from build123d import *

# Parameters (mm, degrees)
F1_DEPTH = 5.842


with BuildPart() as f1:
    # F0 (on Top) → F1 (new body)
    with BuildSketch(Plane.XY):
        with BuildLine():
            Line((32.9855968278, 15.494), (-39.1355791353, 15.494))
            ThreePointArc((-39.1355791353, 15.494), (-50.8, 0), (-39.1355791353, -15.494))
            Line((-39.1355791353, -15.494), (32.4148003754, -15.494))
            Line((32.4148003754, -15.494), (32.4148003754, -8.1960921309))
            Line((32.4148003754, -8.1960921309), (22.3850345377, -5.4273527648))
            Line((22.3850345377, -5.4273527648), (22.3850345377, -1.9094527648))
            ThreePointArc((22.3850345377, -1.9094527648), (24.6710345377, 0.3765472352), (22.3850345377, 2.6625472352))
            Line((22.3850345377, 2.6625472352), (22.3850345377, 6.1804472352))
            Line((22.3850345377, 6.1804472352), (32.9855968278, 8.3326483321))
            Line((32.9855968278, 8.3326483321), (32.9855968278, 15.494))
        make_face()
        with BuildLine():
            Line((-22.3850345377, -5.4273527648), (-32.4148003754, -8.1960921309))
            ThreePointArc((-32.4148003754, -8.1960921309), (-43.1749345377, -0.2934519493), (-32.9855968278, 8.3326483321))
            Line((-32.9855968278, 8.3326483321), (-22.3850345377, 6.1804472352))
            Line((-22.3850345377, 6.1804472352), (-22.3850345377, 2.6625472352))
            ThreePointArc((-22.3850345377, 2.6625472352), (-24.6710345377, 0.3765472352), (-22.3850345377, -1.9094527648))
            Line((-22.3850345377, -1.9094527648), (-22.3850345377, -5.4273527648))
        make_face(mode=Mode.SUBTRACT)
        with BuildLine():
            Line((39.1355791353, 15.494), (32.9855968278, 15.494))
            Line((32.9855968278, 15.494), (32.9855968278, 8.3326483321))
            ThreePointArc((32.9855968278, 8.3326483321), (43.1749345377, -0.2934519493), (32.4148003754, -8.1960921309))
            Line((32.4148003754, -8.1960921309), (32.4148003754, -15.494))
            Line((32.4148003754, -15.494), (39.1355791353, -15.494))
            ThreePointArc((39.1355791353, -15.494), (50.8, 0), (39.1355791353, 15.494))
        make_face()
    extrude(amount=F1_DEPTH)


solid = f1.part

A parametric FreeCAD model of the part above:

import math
import FreeCAD as App
import Part
import Sketcher
from FreeCAD import Vector
Q = App.Units.Quantity

doc = App.newDocument("Part")
body = doc.addObject("PartDesign::Body", "Body")

# Sketch on XY plane
sketch1 = body.newObject("Sketcher::SketchObject", "Sketch")
sketch1.AttachmentSupport = (doc.getObject("XY_Plane"), [""])
sketch1.MapMode = "FlatFace"
sketch1.addGeometry(Part.ArcOfCircle(Part.Circle(Vector(-34.7, 0, 0), Vector(0, 0, 1), 16.1), math.radians(106), math.radians(254)), False)
sketch1.addGeometry(Part.LineSegment(Vector(-39.1, -15.5, 0), Vector(39.1, -15.5, 0)), False)
sketch1.addGeometry(Part.ArcOfCircle(Part.Circle(Vector(34.7, 0, 0), Vector(0, 0, 1), 16.1), math.radians(-74), math.radians(74)), False)
sketch1.addGeometry(Part.LineSegment(Vector(39.1, 15.5, 0), Vector(-39.1, 15.5, 0)), False)
sketch1.addGeometry(Part.LineSegment(Vector(-22.4, -1.9, 0), Vector(-22.4, -5.4, 0)), False)
sketch1.addGeometry(Part.LineSegment(Vector(-22.4, -5.4, 0), Vector(-32.4, -8.2, 0)), False)
sketch1.addGeometry(Part.ArcOfCircle(Part.Circle(Vector(-34.7, 0, 0), Vector(0, 0, 1), 8.5), math.radians(79), math.radians(285)), False)
sketch1.addGeometry(Part.LineSegment(Vector(-33, 8.3, 0), Vector(-22.4, 6.2, 0)), False)
sketch1.addGeometry(Part.LineSegment(Vector(-22.4, 6.2, 0), Vector(-22.4, 2.7, 0)), False)
sketch1.addGeometry(Part.ArcOfCircle(Part.Circle(Vector(-22.4, 0.4, 0), Vector(0, 0, 1), 2.3), math.radians(90), math.radians(270)), False)
sketch1.addGeometry(Part.LineSegment(Vector(22.4, 6.2, 0), Vector(33, 8.3, 0)), False)
sketch1.addGeometry(Part.ArcOfCircle(Part.Circle(Vector(34.7, 0, 0), Vector(0, 0, 1), 8.5), math.radians(-105), math.radians(101)), False)
sketch1.addGeometry(Part.LineSegment(Vector(32.4, -8.2, 0), Vector(22.4, -5.4, 0)), False)
sketch1.addGeometry(Part.LineSegment(Vector(22.4, -5.4, 0), Vector(22.4, -1.9, 0)), False)
sketch1.addGeometry(Part.ArcOfCircle(Part.Circle(Vector(22.4, 0.4, 0), Vector(0, 0, 1), 2.3), math.radians(-90), math.radians(90)), False)
sketch1.addGeometry(Part.LineSegment(Vector(22.4, 2.7, 0), Vector(22.4, 6.2, 0)), False)
sketch1.addConstraint(Sketcher.Constraint("Coincident", 0, 2, 1, 1))
sketch1.addConstraint(Sketcher.Constraint("Coincident", 1, 2, 2, 1))
sketch1.addConstraint(Sketcher.Constraint("Coincident", 2, 2, 3, 1))
sketch1.addConstraint(Sketcher.Constraint("Coincident", 3, 2, 0, 1))
sketch1.addConstraint(Sketcher.Constraint("Coincident", 4, 2, 5, 1))
sketch1.addConstraint(Sketcher.Constraint("Tangent", 5, 2, 6, 2))
sketch1.addConstraint(Sketcher.Constraint("Tangent", 6, 1, 7, 1))
sketch1.addConstraint(Sketcher.Constraint("Coincident", 7, 2, 8, 1))
sketch1.addConstraint(Sketcher.Constraint("Coincident", 8, 2, 9, 1))
sketch1.addConstraint(Sketcher.Constraint("Coincident", 9, 2, 4, 1))
sketch1.addConstraint(Sketcher.Constraint("Tangent", 10, 2, 11, 2))
sketch1.addConstraint(Sketcher.Constraint("Tangent", 11, 1, 12, 1))
sketch1.addConstraint(Sketcher.Constraint("Coincident", 12, 2, 13, 1))
sketch1.addConstraint(Sketcher.Constraint("Coincident", 13, 2, 14, 1))
sketch1.addConstraint(Sketcher.Constraint("Coincident", 14, 2, 15, 1))
sketch1.addConstraint(Sketcher.Constraint("Coincident", 15, 2, 10, 1))
sketch1.addConstraint(Sketcher.Constraint("Horizontal", 1))
sketch1.addConstraint(Sketcher.Constraint("Horizontal", 3))
sketch1.addConstraint(Sketcher.Constraint("Vertical", 4))
sketch1.addConstraint(Sketcher.Constraint("Vertical", 8))
sketch1.addConstraint(Sketcher.Constraint("Vertical", 13))
sketch1.addConstraint(Sketcher.Constraint("Vertical", 15))
sketch1.addConstraint(Sketcher.Constraint("Coincident", 6, 3, 0, 3))
sketch1.addConstraint(Sketcher.Constraint("Coincident", 11, 3, 2, 3))
sketch1.addConstraint(Sketcher.Constraint("Equal", 0, 2))
sketch1.addConstraint(Sketcher.Constraint("Equal", 6, 11))
sketch1.addConstraint(Sketcher.Constraint("Equal", 9, 14))
sketch1.addConstraint(Sketcher.Constraint("Symmetric", 0, 3, 2, 3, -1, 1))
sketch1.addConstraint(Sketcher.Constraint("Symmetric", 9, 3, 14, 3, -2))
sketch1.addConstraint(Sketcher.Constraint("Symmetric", 6, 1, 10, 2, -2))
sketch1.addConstraint(Sketcher.Constraint("Symmetric", 4, 2, 12, 2, -2))
sketch1.addConstraint(Sketcher.Constraint("Horizontal", 7, 2, 15, 2))
sketch1.addConstraint(Sketcher.Constraint("Vertical", 1, 2, 2, 2))
sketch1.addConstraint(Sketcher.Constraint("Vertical", 9, 3, 4, 2))
sketch1.addConstraint(Sketcher.Constraint("Vertical", 4, 2, 7, 2))
sketch1.addConstraint(Sketcher.Constraint("Equal", 4, 8))
sketch1.addConstraint(Sketcher.Constraint("Radius", 9, Q("0.09 in")))
sketch1.addConstraint(Sketcher.Constraint("DistanceY", 0, 2, -1, 1, Q("0.61 in")))
sketch1.addConstraint(Sketcher.Constraint("DistanceY", 4, 2, 4, 1, Q("0.1385 in")))
sketch1.addConstraint(Sketcher.Constraint("Radius", 0, Q("16.12265 mm")))
sketch1.addConstraint(Sketcher.Constraint("Radius", 6, Q("8.50265 mm")))
sketch1.addConstraint(Sketcher.Constraint("DistanceX", 0, 3, 2, 3, Q("2.7305 in")))
sketch1.addConstraint(Sketcher.Constraint("DistanceX", 5, 2, -1, 1, Q("32.4148 mm")))
sketch1.addConstraint(Sketcher.Constraint("DistanceY", 9, 3, 6, 1, Q("7.956101 mm")))
pad1 = body.newObject("PartDesign::Pad", "Pad")
pad1.Profile = sketch1
pad1.Length = Q("0.23 in")

doc.recompute()
